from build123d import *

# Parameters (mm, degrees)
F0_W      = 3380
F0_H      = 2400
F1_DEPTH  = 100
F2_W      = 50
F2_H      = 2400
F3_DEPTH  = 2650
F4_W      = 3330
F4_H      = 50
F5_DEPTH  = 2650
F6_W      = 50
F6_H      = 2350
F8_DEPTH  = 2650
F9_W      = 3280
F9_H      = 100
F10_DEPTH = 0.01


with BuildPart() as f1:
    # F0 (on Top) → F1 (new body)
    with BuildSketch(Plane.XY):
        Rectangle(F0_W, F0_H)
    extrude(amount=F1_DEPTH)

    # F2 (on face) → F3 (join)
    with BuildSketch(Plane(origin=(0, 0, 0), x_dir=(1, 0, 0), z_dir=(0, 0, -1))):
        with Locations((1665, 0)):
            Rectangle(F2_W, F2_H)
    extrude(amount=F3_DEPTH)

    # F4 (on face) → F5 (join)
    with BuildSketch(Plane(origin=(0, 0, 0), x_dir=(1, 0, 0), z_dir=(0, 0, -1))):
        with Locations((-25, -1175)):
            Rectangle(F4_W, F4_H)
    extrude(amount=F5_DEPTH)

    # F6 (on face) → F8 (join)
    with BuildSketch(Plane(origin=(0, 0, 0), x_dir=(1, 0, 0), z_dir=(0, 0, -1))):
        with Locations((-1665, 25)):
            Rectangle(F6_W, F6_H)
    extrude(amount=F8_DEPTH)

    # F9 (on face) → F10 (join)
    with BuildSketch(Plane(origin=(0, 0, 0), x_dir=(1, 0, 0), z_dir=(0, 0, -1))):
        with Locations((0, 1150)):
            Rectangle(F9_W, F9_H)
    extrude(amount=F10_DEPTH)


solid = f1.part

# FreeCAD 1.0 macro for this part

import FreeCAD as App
import Part
import Sketcher

V = App.Vector

doc = App.newDocument("Part")
body = doc.addObject("PartDesign::Body", "Body")

# Sketch on XY plane
sketch1 = doc.addObject("Sketcher::SketchObject", "Sketch")
body.addObject(sketch1)
sketch1.AttachmentSupport = (doc.XY_Plane, [""])
sketch1.MapMode = "FlatFace"
sketch1.addGeometry(Part.LineSegment(V(-1690, 1200, 0), V(-1690, -1200, 0)), False)
sketch1.addGeometry(Part.LineSegment(V(-1690, -1200, 0), V(1690, -1200, 0)), False)
sketch1.addGeometry(Part.LineSegment(V(1690, -1200, 0), V(1690, 1200, 0)), False)
sketch1.addGeometry(Part.LineSegment(V(1690, 1200, 0), V(-1690, 1200, 0)), False)
sketch1.addConstraint(Sketcher.Constraint("Coincident", 0, 2, 1, 1))
sketch1.addConstraint(Sketcher.Constraint("Coincident", 1, 2, 2, 1))
sketch1.addConstraint(Sketcher.Constraint("Coincident", 2, 2, 3, 1))
sketch1.addConstraint(Sketcher.Constraint("Coincident", 3, 2, 0, 1))
sketch1.addConstraint(Sketcher.Constraint("Vertical", 0))
sketch1.addConstraint(Sketcher.Constraint("Horizontal", 1))
sketch1.addConstraint(Sketcher.Constraint("Vertical", 2))
sketch1.addConstraint(Sketcher.Constraint("Horizontal", 3))
sketch1.addConstraint(Sketcher.Constraint("Symmetric", 0, 2, 2, 2, -1, 1))
sketch1.addConstraint(Sketcher.Constraint("DistanceX", 1, 1, 1, 2, 3380.0))
sketch1.addConstraint(Sketcher.Constraint("DistanceY", 0, 2, 0, 1, 2400.0))
pad1 = doc.addObject("PartDesign::Pad", "Pad")
body.addObject(pad1)
pad1.Profile = sketch1
pad1.Length = 100

# Sketch on XY plane
sketch2 = doc.addObject("Sketcher::SketchObject", "Sketch001")
body.addObject(sketch2)
sketch2.AttachmentSupport = (doc.XY_Plane, [""])
sketch2.MapMode = "FlatFace"
sketch2.addGeometry(Part.LineSegment(V(1640, -1200, 0), V(1640, 1200, 0)), False)
sketch2.addGeometry(Part.LineSegment(V(1640, 1200, 0), V(1690, 1200, 0)), False)
sketch2.addGeometry(Part.LineSegment(V(1690, 1200, 0), V(1690, -1200, 0)), False)
sketch2.addGeometry(Part.LineSegment(V(1690, -1200, 0), V(1640, -1200, 0)), False)
sketch2.addConstraint(Sketcher.Constraint("Coincident", 0, 2, 1, 1))
sketch2.addConstraint(Sketcher.Constraint("Coincident", 1, 2, 2, 1))
sketch2.addConstraint(Sketcher.Constraint("Coincident", 2, 2, 3, 1))
sketch2.addConstraint(Sketcher.Constraint("Coincident", 3, 2, 0, 1))
sketch2.addConstraint(Sketcher.Constraint("Vertical", 0))
sketch2.addConstraint(Sketcher.Constraint("Horizontal", 1))
sketch2.addConstraint(Sketcher.Constraint("Vertical", 2))
sketch2.addConstraint(Sketcher.Constraint("Horizontal", 3))
sketch2.addConstraint(Sketcher.Constraint("DistanceX", 1, 1, 1, 2, 50.0))
sketch2.addConstraint(Sketcher.Constraint("DistanceY", 0, 1, 0, 2, 2400.0))
sketch2.addConstraint(Sketcher.Constraint("DistanceX", -1, 1, 0, 2, 1640.0))
sketch2.addConstraint(Sketcher.Constraint("DistanceY", -1, 1, 0, 2, 1200.0))
pad2 = doc.addObject("PartDesign::Pad", "Pad001")
body.addObject(pad2)
pad2.Profile = sketch2
pad2.Length = 2650
pad2.Reversed = True

# Sketch on XY plane
sketch3 = doc.addObject("Sketcher::SketchObject", "Sketch002")
body.addObject(sketch3)
sketch3.AttachmentSupport = (doc.XY_Plane, [""])
sketch3.MapMode = "FlatFace"
sketch3.addGeometry(Part.LineSegment(V(-1690, 1150, 0), V(-1690, 1200, 0)), False)
sketch3.addGeometry(Part.LineSegment(V(-1690, 1200, 0), V(1640, 1200, 0)), False)
sketch3.addGeometry(Part.LineSegment(V(1640, 1200, 0), V(1640, 1150, 0)), False)
sketch3.addGeometry(Part.LineSegment(V(1640, 1150, 0), V(-1690, 1150, 0)), False)
sketch3.addConstraint(Sketcher.Constraint("Coincident", 0, 2, 1, 1))
sketch3.addConstraint(Sketcher.Constraint("Coincident", 1, 2, 2, 1))
sketch3.addConstraint(Sketcher.Constraint("Coincident", 2, 2, 3, 1))
sketch3.addConstraint(Sketcher.Constraint("Coincident", 3, 2, 0, 1))
sketch3.addConstraint(Sketcher.Constraint("Vertical", 0))
sketch3.addConstraint(Sketcher.Constraint("Horizontal", 1))
sketch3.addConstraint(Sketcher.Constraint("Vertical", 2))
sketch3.addConstraint(Sketcher.Constraint("Horizontal", 3))
sketch3.addConstraint(Sketcher.Constraint("DistanceX", 1, 1, 1, 2, 3330.0))
sketch3.addConstraint(Sketcher.Constraint("DistanceY", 0, 1, 0, 2, 50.0))
sketch3.addConstraint(Sketcher.Constraint("DistanceX", 0, 2, -1, 1, 1690.0))
sketch3.addConstraint(Sketcher.Constraint("DistanceY", -1, 1, 0, 2, 1200.0))
pad3 = doc.addObject("PartDesign::Pad", "Pad002")
body.addObject(pad3)
pad3.Profile = sketch3
pad3.Length = 2650
pad3.Reversed = True

# Sketch on XY plane
sketch4 = doc.addObject("Sketcher::SketchObject", "Sketch003")
body.addObject(sketch4)
sketch4.AttachmentSupport = (doc.XY_Plane, [""])
sketch4.MapMode = "FlatFace"
sketch4.addGeometry(Part.LineSegment(V(-1690, -1200, 0), V(-1690, 1150, 0)), False)
sketch4.addGeometry(Part.LineSegment(V(-1690, 1150, 0), V(-1640, 1150, 0)), False)
sketch4.addGeometry(Part.LineSegment(V(-1640, 1150, 0), V(-1640, -1200, 0)), False)
sketch4.addGeometry(Part.LineSegment(V(-1640, -1200, 0), V(-1690, -1200, 0)), False)
sketch4.addConstraint(Sketcher.Constraint("Coincident", 0, 2, 1, 1))
sketch4.addConstraint(Sketcher.Constraint("Coincident", 1, 2, 2, 1))
sketch4.addConstraint(Sketcher.Constraint("Coincident", 2, 2, 3, 1))
sketch4.addConstraint(Sketcher.Constraint("Coincident", 3, 2, 0, 1))
sketch4.addConstraint(Sketcher.Constraint("Vertical", 0))
sketch4.addConstraint(Sketcher.Constraint("Horizontal", 1))
sketch4.addConstraint(Sketcher.Constraint("Vertical", 2))
sketch4.addConstraint(Sketcher.Constraint("Horizontal", 3))
sketch4.addConstraint(Sketcher.Constraint("DistanceX", 1, 1, 1, 2, 50.0))
sketch4.addConstraint(Sketcher.Constraint("DistanceY", 0, 1, 0, 2, 2350.0))
sketch4.addConstraint(Sketcher.Constraint("DistanceX", 0, 2, -1, 1, 1690.0))
sketch4.addConstraint(Sketcher.Constraint("DistanceY", -1, 1, 0, 2, 1150.0))
pad4 = doc.addObject("PartDesign::Pad", "Pad003")
body.addObject(pad4)
pad4.Profile = sketch4
pad4.Length = 2650
pad4.Reversed = True

# Sketch on XY plane
sketch5 = doc.addObject("Sketcher::SketchObject", "Sketch004")
body.addObject(sketch5)
sketch5.AttachmentSupport = (doc.XY_Plane, [""])
sketch5.MapMode = "FlatFace"
sketch5.addGeometry(Part.LineSegment(V(-1640, -1200, 0), V(-1640, -1100, 0)), False)
sketch5.addGeometry(Part.LineSegment(V(-1640, -1100, 0), V(1640, -1100, 0)), False)
sketch5.addGeometry(Part.LineSegment(V(1640, -1100, 0), V(1640, -1200, 0)), False)
sketch5.addGeometry(Part.LineSegment(V(1640, -1200, 0), V(-1640, -1200, 0)), False)
sketch5.addConstraint(Sketcher.Constraint("Coincident", 0, 2, 1, 1))
sketch5.addConstraint(Sketcher.Constraint("Coincident", 1, 2, 2, 1))
sketch5.addConstraint(Sketcher.Constraint("Coincident", 2, 2, 3, 1))
sketch5.addConstraint(Sketcher.Constraint("Coincident", 3, 2, 0, 1))
sketch5.addConstraint(Sketcher.Constraint("Vertical", 0))
sketch5.addConstraint(Sketcher.Constraint("Horizontal", 1))
sketch5.addConstraint(Sketcher.Constraint("Vertical", 2))
sketch5.addConstraint(Sketcher.Constraint("Horizontal", 3))
sketch5.addConstraint(Sketcher.Constraint("DistanceX", 1, 1, 1, 2, 3280.0))
sketch5.addConstraint(Sketcher.Constraint("DistanceY", 0, 1, 0, 2, 100.0))
sketch5.addConstraint(Sketcher.Constraint("DistanceX", 0, 2, -1, 1, 1640.0))
sketch5.addConstraint(Sketcher.Constraint("DistanceY", 0, 2, -1, 1, 1100.0))
pad5 = doc.addObject("PartDesign::Pad", "Pad004")
body.addObject(pad5)
pad5.Profile = sketch5
pad5.Length = 0.01
pad5.Reversed = True

doc.recompute()
